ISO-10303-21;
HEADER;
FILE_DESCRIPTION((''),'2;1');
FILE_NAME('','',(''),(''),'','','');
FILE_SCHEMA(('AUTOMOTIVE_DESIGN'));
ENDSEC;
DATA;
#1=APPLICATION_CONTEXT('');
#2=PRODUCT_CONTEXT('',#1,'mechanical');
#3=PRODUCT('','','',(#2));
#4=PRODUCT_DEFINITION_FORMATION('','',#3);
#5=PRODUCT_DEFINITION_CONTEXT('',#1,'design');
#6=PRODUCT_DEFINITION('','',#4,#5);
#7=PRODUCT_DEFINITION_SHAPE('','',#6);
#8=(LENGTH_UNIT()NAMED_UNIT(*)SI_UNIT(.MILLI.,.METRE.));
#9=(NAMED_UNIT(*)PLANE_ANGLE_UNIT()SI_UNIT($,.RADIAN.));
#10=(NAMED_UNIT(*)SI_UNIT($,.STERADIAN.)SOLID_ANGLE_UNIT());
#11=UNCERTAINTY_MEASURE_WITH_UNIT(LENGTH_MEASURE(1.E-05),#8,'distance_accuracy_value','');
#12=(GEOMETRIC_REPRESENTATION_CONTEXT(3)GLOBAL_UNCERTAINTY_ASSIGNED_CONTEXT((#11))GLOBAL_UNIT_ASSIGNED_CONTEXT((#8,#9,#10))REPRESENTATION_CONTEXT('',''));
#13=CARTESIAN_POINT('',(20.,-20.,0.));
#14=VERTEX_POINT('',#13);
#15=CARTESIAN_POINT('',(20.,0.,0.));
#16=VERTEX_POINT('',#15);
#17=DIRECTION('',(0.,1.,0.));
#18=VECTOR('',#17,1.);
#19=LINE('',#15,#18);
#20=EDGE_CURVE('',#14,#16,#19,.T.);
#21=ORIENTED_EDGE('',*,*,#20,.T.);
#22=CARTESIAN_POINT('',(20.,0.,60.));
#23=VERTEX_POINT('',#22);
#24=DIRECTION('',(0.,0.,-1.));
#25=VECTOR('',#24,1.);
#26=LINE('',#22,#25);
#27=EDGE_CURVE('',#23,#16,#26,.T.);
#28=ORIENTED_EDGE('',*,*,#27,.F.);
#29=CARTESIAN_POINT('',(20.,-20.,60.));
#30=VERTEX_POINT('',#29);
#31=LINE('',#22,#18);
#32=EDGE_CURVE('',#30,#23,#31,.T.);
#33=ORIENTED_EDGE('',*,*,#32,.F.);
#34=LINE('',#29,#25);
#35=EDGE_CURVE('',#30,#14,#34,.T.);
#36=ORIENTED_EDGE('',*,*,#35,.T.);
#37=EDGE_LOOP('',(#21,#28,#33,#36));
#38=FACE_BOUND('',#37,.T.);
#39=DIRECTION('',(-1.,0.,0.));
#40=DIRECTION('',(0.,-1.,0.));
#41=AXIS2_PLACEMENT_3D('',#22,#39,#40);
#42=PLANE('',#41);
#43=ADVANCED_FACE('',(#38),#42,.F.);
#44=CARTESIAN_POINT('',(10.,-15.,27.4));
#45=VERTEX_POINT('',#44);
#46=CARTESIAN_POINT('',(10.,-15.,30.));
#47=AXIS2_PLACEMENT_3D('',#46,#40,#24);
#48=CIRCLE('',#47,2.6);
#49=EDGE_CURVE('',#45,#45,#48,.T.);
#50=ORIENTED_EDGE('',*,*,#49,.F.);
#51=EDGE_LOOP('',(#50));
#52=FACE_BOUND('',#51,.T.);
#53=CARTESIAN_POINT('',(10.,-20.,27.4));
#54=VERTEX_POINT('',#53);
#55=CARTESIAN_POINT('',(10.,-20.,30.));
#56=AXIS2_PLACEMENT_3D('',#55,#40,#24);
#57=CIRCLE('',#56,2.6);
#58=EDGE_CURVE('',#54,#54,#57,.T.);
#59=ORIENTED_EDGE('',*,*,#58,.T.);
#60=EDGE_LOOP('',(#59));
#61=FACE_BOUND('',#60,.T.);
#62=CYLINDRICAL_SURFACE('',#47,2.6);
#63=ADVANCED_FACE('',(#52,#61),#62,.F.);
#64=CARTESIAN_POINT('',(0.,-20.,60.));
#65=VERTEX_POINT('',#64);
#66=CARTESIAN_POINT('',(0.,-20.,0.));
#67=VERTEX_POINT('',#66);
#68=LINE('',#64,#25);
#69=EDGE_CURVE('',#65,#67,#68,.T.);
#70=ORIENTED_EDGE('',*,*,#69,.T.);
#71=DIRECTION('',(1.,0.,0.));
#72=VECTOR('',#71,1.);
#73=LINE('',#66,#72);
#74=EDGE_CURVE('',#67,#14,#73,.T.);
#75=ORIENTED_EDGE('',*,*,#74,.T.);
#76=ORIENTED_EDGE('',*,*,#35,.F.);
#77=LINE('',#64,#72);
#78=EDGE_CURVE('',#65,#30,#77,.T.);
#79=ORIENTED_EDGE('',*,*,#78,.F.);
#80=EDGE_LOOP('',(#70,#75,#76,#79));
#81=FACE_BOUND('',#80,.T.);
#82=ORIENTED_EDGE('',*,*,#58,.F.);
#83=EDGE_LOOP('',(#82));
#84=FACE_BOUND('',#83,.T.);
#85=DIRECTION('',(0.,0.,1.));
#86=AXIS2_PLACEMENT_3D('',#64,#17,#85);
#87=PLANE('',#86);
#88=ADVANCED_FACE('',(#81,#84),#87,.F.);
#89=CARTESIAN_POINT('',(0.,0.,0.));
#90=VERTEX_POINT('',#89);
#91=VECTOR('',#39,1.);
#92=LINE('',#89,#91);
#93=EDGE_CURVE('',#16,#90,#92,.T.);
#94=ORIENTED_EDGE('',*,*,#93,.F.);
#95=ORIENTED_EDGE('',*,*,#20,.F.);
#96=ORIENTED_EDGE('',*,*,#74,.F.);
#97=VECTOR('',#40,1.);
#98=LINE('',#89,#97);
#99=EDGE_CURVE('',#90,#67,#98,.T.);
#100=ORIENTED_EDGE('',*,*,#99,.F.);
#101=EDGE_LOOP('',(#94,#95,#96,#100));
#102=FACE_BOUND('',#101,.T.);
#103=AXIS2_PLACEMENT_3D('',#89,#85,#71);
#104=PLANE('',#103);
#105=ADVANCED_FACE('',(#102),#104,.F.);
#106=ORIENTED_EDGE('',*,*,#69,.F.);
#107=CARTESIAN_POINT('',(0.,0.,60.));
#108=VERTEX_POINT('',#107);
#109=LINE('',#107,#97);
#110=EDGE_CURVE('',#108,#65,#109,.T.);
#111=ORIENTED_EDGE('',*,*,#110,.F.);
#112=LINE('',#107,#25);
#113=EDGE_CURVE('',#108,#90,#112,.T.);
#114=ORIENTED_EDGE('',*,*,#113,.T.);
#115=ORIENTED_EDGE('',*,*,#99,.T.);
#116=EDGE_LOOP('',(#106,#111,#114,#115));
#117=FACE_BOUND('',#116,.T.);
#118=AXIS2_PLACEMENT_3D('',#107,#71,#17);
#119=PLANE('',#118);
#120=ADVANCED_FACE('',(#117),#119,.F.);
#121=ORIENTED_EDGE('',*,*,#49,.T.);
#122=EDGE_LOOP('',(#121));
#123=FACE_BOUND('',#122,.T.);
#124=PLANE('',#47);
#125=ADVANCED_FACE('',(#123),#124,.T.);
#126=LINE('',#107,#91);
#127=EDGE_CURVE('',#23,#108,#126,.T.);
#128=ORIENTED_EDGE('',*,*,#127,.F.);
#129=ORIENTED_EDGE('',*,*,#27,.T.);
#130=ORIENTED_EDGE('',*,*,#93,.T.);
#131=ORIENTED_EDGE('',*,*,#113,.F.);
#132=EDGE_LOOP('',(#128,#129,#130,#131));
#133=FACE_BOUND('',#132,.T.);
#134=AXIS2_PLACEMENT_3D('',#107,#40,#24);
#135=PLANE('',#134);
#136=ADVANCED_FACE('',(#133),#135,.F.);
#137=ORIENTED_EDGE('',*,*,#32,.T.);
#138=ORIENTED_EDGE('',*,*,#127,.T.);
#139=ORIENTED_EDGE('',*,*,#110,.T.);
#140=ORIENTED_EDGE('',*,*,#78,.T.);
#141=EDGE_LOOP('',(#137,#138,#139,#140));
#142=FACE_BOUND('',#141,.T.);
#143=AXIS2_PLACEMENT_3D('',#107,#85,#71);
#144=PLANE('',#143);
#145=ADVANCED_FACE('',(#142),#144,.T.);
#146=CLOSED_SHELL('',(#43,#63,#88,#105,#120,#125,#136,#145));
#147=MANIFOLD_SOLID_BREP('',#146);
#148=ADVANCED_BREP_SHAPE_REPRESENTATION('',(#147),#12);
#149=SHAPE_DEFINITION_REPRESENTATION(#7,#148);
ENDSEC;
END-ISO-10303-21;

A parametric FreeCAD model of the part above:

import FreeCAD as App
import Part
import Sketcher
from FreeCAD import Vector
Q = App.Units.Quantity


def add_polygon(sketch, points):
    """Adds a closed chain of lines whose ends are joined by coincident constraints."""
    first, n = sketch.GeometryCount, len(points)
    for a, b in zip(points, points[1:] + points[:1]):
        sketch.addGeometry(Part.LineSegment(App.Vector(*a, 0), App.Vector(*b, 0)), False)
    for i in range(n):
        sketch.addConstraint(Sketcher.Constraint("Coincident", first + i, 2, first + (i + 1) % n, 1))

doc = App.newDocument("Part")
params = doc.addObject("Spreadsheet::Sheet", "Params")
for row, (alias, value) in enumerate([
    ("sketch1_width", "20 mm"),
    ("pad1_length", "60 mm"),
    ("sketch2_diameter", "5.2 mm"),
    ("pocket1_length", "5 mm"),
], start=1):
    params.set(f"A{row}", alias)
    params.set(f"B{row}", "=" + value)
    params.setAlias(f"B{row}", alias)

body = doc.addObject("PartDesign::Body", "Body")

# Sketch on XY plane
sketch1 = body.newObject("Sketcher::SketchObject", "Sketch")
sketch1.AttachmentSupport = (doc.getObject("XY_Plane"), [""])
sketch1.MapMode = "FlatFace"
add_polygon(sketch1, [(0, 0), (0, -20), (20, -20), (20, 0)])  # lines 0-3
sketch1.addConstraint([
    Sketcher.Constraint("Vertical", 0),
    Sketcher.Constraint("Horizontal", 1),
    Sketcher.Constraint("Vertical", 2),
    Sketcher.Constraint("Horizontal", 3),
    Sketcher.Constraint("Coincident", 3, 2, -1, 1),
    Sketcher.Constraint("Equal", 3, 0),
    Sketcher.Constraint("DistanceX", 1, 1, 1, 2, Q("20 mm")),
])
sketch1.setExpression("Constraints[10]", "Params.sketch1_width")
pad1 = body.newObject("PartDesign::Pad", "Pad")
pad1.Profile = sketch1
pad1.setExpression("Length", "Params.pad1_length")

# Sketch on XZ plane
sketch2 = body.newObject("Sketcher::SketchObject", "Sketch001")
sketch2.AttachmentSupport = (doc.getObject("XZ_Plane"), [""])
sketch2.MapMode = "FlatFace"
sketch2.AttachmentOffset = App.Placement(Vector(0, 0, 20), App.Rotation())
sketch2.addGeometry(Part.Circle(Vector(10, 30, 0), Vector(0, 0, 1), 2.6), False)
sketch2.addConstraint([
    Sketcher.Constraint("Diameter", 0, Q("5.2 mm")),
    Sketcher.Constraint("DistanceX", -1, 1, 0, 3, Q("10 mm")),
    Sketcher.Constraint("DistanceY", -1, 1, 0, 3, Q("30 mm")),
])
sketch2.setExpression("Constraints[0]", "Params.sketch2_diameter")
pocket1 = body.newObject("PartDesign::Pocket", "Pocket")
pocket1.Profile = sketch2
pocket1.setExpression("Length", "Params.pocket1_length")

doc.recompute()
